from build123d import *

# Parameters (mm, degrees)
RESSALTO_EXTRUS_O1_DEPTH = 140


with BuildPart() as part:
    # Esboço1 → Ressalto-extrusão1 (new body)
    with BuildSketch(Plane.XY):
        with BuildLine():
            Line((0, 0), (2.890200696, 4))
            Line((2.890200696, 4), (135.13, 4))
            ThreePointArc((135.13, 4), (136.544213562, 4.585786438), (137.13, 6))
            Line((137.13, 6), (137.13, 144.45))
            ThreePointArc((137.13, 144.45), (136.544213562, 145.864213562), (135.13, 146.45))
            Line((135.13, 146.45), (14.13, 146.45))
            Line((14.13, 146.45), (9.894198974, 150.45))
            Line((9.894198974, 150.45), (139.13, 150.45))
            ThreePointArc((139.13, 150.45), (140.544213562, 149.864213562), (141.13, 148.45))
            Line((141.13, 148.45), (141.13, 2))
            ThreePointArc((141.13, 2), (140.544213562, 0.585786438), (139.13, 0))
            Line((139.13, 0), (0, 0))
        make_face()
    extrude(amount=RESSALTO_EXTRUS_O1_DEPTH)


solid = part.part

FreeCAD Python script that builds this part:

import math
import FreeCAD as App
import Part
import Sketcher

V = App.Vector
Q = App.Units.Quantity

doc = App.newDocument("Part")
body = doc.addObject("PartDesign::Body", "Body")

# Sketch on XY plane
sketch1 = body.newObject("Sketcher::SketchObject", "Sketch")
sketch1.AttachmentSupport = (doc.getObject("XY_Plane"), [""])
sketch1.MapMode = "FlatFace"
sketch1.addGeometry([
    Part.LineSegment(V(2.9, 4, 0), V(0, 0, 0)),  # 0
    Part.LineSegment(V(0, 0, 0), V(139.1, 0, 0)),  # 1
    Part.ArcOfCircle(Part.Circle(V(139.1, 2, 0), V(0, 0, 1), 2), math.radians(-90), math.radians(0)),  # 2
    Part.LineSegment(V(141.1, 2, 0), V(141.1, 148.4, 0)),  # 3
    Part.ArcOfCircle(Part.Circle(V(139.1, 148.4, 0), V(0, 0, 1), 2), math.radians(0), math.radians(90)),  # 4
    Part.LineSegment(V(139.1, 150.4, 0), V(9.9, 150.4, 0)),  # 5
    Part.LineSegment(V(9.9, 150.4, 0), V(14.1, 146.4, 0)),  # 6
    Part.LineSegment(V(14.1, 146.4, 0), V(135.1, 146.4, 0)),  # 7
    Part.ArcOfCircle(Part.Circle(V(135.1, 144.4, 0), V(0, 0, 1), 2), math.radians(0), math.radians(90)),  # 8
    Part.LineSegment(V(137.1, 144.4, 0), V(137.1, 6, 0)),  # 9
    Part.ArcOfCircle(Part.Circle(V(135.1, 6, 0), V(0, 0, 1), 2), math.radians(-90), math.radians(0)),  # 10
    Part.LineSegment(V(135.1, 4, 0), V(2.9, 4, 0)),  # 11
], False)
sketch1.addConstraint([
    Sketcher.Constraint("Coincident", 0, 2, 1, 1),
    Sketcher.Constraint("Tangent", 1, 2, 2, 1),
    Sketcher.Constraint("Tangent", 2, 2, 3, 1),
    Sketcher.Constraint("Tangent", 3, 2, 4, 1),
    Sketcher.Constraint("Tangent", 4, 2, 5, 1),
    Sketcher.Constraint("Coincident", 5, 2, 6, 1),
    Sketcher.Constraint("Coincident", 6, 2, 7, 1),
    Sketcher.Constraint("Tangent", 7, 2, 8, 2),
    Sketcher.Constraint("Tangent", 8, 1, 9, 1),
    Sketcher.Constraint("Tangent", 9, 2, 10, 2),
    Sketcher.Constraint("Tangent", 10, 1, 11, 1),
    Sketcher.Constraint("Coincident", 11, 2, 0, 1),
    Sketcher.Constraint("Horizontal", 1),
    Sketcher.Constraint("Vertical", 3),
    Sketcher.Constraint("Horizontal", 5),
    Sketcher.Constraint("Horizontal", 7),
    Sketcher.Constraint("Vertical", 9),
    Sketcher.Constraint("Horizontal", 11),
    Sketcher.Constraint("Coincident", 0, 2, -1, 1),
    Sketcher.Constraint("Equal", 2, 4),
    Sketcher.Constraint("Equal", 4, 8),
    Sketcher.Constraint("Equal", 8, 10),
    Sketcher.Constraint("Radius", 2, Q("2 mm")),
    Sketcher.Constraint("DistanceX", 7, 1, 7, 2, Q("121 mm")),
    Sketcher.Constraint("DistanceY", -1, 1, 10, 3, Q("6 mm")),
    Sketcher.Constraint("DistanceX", 8, 3, 4, 3, Q("4 mm")),
    Sketcher.Constraint("DistanceY", 8, 3, 4, 3, Q("4 mm")),
    Sketcher.Constraint("DistanceX", 1, 1, 1, 2, Q("139.13 mm")),
    Sketcher.Constraint("DistanceY", 3, 1, 3, 2, Q("146.45 mm")),
    Sketcher.Constraint("Angle", 0, Q("-125.85 deg")),
    Sketcher.Constraint("Angle", 6, Q("-43.36 deg")),
])
pad1 = body.newObject("PartDesign::Pad", "Pad")
pad1.Profile = sketch1
pad1.Length = 140

doc.recompute()
